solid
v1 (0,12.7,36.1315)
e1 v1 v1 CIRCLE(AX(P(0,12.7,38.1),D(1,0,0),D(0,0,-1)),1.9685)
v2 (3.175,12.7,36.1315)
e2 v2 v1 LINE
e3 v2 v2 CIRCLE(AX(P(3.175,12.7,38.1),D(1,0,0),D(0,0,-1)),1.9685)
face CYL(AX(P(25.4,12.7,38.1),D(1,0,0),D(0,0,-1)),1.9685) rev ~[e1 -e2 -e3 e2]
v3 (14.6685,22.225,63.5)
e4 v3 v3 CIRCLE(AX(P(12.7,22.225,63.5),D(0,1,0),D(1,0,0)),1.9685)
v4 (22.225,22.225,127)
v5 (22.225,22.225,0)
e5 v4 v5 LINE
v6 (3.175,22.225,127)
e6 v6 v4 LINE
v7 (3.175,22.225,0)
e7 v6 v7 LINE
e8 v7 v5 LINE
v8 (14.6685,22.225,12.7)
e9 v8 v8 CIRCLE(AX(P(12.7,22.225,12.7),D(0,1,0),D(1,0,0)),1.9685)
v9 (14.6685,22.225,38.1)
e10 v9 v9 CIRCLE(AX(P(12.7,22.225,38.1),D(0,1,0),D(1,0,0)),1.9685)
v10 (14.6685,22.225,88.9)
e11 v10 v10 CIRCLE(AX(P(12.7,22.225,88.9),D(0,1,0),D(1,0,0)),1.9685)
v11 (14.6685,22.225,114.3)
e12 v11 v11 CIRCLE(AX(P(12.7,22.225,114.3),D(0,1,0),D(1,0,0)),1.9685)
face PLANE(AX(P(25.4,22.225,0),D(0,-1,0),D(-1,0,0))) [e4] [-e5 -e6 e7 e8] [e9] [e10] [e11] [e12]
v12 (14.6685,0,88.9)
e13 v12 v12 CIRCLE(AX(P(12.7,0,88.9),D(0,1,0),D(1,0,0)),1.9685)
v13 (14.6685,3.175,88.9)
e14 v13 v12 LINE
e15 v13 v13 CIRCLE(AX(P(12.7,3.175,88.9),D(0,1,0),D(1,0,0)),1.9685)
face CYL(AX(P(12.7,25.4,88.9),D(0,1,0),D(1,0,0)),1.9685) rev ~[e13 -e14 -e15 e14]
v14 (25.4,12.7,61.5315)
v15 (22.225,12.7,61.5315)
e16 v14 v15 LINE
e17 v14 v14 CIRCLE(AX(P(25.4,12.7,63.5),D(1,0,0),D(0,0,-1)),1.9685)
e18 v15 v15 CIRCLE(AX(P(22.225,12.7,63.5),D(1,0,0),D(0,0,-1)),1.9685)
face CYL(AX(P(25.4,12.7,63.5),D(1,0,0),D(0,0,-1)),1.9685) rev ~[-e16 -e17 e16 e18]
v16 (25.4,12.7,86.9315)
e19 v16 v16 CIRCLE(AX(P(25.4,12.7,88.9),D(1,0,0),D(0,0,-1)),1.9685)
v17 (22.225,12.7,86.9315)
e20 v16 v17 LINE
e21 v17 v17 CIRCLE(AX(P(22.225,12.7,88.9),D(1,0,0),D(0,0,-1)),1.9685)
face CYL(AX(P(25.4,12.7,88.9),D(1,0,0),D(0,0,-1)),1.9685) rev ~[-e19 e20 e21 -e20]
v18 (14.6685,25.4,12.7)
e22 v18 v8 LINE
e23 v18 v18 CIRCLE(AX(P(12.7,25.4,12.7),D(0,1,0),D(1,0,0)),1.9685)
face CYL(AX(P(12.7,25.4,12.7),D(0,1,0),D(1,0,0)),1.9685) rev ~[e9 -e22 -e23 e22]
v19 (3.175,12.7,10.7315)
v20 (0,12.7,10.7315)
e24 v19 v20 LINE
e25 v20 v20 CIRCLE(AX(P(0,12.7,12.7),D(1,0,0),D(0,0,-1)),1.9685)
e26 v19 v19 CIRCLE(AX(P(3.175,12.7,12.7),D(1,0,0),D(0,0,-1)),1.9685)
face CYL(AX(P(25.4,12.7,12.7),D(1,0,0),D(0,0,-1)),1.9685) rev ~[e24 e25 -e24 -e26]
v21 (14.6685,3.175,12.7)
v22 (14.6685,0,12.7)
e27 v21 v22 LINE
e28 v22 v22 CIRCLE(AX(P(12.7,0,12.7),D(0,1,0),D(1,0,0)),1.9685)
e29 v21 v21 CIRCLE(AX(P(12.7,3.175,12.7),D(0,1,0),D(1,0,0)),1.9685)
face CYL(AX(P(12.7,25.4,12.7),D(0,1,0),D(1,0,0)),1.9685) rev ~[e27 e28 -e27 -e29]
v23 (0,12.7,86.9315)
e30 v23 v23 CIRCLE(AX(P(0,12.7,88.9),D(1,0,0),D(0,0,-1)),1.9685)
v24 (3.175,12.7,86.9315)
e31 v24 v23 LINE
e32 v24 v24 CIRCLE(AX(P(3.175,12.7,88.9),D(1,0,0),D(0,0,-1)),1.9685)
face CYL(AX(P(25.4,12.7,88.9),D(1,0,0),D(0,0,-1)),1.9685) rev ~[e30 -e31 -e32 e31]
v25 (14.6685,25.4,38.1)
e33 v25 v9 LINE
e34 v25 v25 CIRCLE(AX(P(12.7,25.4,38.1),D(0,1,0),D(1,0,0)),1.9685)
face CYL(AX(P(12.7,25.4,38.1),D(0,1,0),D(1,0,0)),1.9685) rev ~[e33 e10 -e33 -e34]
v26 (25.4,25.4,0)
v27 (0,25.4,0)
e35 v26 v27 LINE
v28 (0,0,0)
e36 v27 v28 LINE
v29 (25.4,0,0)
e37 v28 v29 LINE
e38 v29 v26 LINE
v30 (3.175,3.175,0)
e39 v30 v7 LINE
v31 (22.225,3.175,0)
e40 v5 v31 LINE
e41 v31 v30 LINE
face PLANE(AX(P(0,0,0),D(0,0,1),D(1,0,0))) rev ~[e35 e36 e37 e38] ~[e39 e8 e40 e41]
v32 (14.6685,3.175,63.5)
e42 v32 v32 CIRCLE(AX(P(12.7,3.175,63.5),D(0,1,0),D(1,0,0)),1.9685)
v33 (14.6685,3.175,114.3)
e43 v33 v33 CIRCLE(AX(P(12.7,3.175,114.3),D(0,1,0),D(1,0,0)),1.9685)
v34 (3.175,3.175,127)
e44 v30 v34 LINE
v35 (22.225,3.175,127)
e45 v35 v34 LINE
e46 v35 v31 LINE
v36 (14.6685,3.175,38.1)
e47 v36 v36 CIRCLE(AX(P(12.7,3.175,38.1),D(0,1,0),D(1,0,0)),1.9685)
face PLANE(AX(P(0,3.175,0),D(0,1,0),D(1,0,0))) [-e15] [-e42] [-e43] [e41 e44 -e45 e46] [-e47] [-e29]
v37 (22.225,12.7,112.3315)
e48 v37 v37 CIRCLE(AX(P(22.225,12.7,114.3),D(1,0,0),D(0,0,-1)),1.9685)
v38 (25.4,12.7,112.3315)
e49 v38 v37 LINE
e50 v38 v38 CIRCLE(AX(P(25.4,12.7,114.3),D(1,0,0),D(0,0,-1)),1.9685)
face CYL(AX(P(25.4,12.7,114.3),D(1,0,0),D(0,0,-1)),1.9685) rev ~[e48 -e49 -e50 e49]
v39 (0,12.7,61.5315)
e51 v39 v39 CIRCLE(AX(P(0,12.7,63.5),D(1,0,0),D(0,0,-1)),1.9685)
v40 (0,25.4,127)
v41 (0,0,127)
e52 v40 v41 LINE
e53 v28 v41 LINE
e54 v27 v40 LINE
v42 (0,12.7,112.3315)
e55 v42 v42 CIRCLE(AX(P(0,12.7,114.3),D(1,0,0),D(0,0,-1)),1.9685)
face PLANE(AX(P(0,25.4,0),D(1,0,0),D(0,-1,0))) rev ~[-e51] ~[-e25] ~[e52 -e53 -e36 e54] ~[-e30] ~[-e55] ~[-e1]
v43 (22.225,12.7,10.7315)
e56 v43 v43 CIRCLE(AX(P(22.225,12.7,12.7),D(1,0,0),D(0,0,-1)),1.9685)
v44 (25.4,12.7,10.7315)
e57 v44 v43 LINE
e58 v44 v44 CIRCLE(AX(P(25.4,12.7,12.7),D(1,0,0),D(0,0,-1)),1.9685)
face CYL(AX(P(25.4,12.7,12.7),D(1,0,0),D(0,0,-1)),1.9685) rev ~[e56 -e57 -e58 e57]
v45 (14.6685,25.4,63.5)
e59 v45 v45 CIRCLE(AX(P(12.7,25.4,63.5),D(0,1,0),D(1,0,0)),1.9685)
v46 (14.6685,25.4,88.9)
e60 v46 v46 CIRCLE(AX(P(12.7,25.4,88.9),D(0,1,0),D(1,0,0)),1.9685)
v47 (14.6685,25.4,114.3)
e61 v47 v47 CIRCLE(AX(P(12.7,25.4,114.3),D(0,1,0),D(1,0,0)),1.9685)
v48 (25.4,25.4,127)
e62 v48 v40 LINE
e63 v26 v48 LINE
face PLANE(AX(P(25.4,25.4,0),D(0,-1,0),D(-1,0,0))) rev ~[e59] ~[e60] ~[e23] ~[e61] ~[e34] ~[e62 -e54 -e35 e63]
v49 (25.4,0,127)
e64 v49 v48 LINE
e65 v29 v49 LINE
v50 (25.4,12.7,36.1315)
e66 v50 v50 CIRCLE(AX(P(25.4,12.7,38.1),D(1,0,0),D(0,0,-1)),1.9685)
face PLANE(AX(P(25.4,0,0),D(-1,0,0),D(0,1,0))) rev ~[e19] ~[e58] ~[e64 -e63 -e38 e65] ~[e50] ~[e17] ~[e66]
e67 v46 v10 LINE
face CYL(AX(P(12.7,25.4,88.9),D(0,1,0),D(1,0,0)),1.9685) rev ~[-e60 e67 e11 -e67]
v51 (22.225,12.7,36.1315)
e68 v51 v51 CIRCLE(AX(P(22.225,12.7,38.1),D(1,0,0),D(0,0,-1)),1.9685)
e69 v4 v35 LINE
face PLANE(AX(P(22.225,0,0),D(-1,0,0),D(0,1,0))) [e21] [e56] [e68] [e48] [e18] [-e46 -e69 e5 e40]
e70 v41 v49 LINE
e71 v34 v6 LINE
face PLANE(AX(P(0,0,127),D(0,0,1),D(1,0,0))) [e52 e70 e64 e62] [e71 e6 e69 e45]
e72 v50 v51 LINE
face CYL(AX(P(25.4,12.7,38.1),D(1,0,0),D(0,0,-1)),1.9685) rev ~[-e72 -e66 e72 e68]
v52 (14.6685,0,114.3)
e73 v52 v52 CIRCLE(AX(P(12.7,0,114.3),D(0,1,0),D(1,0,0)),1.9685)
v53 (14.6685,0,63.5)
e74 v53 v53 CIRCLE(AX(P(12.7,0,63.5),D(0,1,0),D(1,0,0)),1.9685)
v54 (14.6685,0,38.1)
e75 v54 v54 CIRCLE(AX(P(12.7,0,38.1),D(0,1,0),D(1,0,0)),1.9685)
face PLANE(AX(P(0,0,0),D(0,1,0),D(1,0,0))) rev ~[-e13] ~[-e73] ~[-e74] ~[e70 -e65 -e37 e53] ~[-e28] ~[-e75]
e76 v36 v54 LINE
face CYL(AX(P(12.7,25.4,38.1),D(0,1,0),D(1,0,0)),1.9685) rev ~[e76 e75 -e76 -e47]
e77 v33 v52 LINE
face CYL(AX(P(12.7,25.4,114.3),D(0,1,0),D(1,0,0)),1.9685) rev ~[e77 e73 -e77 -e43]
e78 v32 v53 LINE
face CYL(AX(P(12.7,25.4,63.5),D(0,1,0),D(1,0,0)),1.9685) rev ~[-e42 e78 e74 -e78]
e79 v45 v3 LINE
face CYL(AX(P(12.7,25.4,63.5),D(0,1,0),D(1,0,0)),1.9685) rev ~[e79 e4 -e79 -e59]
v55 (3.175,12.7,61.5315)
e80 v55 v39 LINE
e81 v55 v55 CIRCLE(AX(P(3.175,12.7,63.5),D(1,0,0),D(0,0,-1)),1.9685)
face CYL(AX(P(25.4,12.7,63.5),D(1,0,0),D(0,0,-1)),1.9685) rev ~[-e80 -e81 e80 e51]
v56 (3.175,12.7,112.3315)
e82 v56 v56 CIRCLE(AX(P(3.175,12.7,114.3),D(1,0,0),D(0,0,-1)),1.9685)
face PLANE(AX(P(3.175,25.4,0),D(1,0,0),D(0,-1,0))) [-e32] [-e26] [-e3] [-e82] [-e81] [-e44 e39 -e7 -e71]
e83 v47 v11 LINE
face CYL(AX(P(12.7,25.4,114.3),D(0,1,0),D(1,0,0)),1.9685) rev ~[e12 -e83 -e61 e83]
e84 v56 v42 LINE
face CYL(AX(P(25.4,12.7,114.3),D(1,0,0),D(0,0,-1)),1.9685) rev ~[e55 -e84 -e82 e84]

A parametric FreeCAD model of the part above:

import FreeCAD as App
import Part
import Sketcher
Q = App.Units.Quantity


def faces_at(feature, points):
    """Names of the faces that lie closest to the given points."""
    faces = feature.Shape.Faces
    near = lambda p: min(range(len(faces)), key=lambda i: faces[i].distToShape(Part.Vertex(*p))[0])
    return sorted({f"Face{near(p) + 1}" for p in points})

doc = App.newDocument("Part")
body = doc.addObject("PartDesign::Body", "Body")

# Sketch on XY plane
sketch1 = doc.addObject("Sketcher::SketchObject", "Sketch")
body.addObject(sketch1)
sketch1.AttachmentSupport = (doc.XY_Plane, [""])
sketch1.MapMode = "FlatFace"
sketch1.addGeometry([
    Part.LineSegment(App.Vector(0, 25, 0), App.Vector(0, 0, 0)),
    Part.LineSegment(App.Vector(0, 0, 0), App.Vector(25, 0, 0)),
    Part.LineSegment(App.Vector(25, 0, 0), App.Vector(25, 25, 0)),
    Part.LineSegment(App.Vector(25, 25, 0), App.Vector(0, 25, 0)),
], False)
sketch1.addConstraint([
    Sketcher.Constraint("Coincident", 0, 2, 1, 1),
    Sketcher.Constraint("Coincident", 1, 2, 2, 1),
    Sketcher.Constraint("Coincident", 2, 2, 3, 1),
    Sketcher.Constraint("Coincident", 3, 2, 0, 1),
    Sketcher.Constraint("Vertical", 0),
    Sketcher.Constraint("Horizontal", 1),
    Sketcher.Constraint("Vertical", 2),
    Sketcher.Constraint("Horizontal", 3),
    Sketcher.Constraint("Coincident", 0, 2, -1, 1),
    Sketcher.Constraint("Equal", 3, 0),
    Sketcher.Constraint("DistanceX", 1, 1, 1, 2, Q("1 in")),
])
pad1 = doc.addObject("PartDesign::Pad", "Pad")
body.addObject(pad1)
pad1.Profile = sketch1
pad1.Length = Q("5 in")
doc.recompute()

thickness = doc.addObject("PartDesign::Thickness", "Thickness")
body.addObject(thickness)
thickness.Base = (pad1, faces_at(pad1, [(8.467, 16.933, 0), (8.467, 16.933, 127)]))
thickness.Value = Q("0.125 in")
thickness.Reversed = True
thickness.Join = "Intersection"

# Sketch on XZ plane
sketch2 = doc.addObject("Sketcher::SketchObject", "Sketch001")
body.addObject(sketch2)
sketch2.AttachmentSupport = (doc.XZ_Plane, [""])
sketch2.MapMode = "FlatFace"
sketch2.AttachmentOffset = App.Placement(App.Vector(0, 0, -1 * 25.4), App.Rotation())
sketch2.addGeometry([
    Part.Circle(App.Vector(12.7, 12.7, 0), App.Vector(0, 0, 1), 2),  # 0
    Part.Circle(App.Vector(12.7, 38.1, 0), App.Vector(0, 0, 1), 2),  # 1
    Part.Circle(App.Vector(12.7, 63.5, 0), App.Vector(0, 0, 1), 2),  # 2
    Part.Circle(App.Vector(12.7, 88.9, 0), App.Vector(0, 0, 1), 2),  # 3
    Part.Circle(App.Vector(12.7, 114.3, 0), App.Vector(0, 0, 1), 2),  # 4
], False)
sketch2.addConstraint([
    Sketcher.Constraint("Equal", 0, 1),
    Sketcher.Constraint("Equal", 1, 2),
    Sketcher.Constraint("Equal", 2, 3),
    Sketcher.Constraint("Equal", 3, 4),
    Sketcher.Constraint("Vertical", 0, 3, 1, 3),
    Sketcher.Constraint("Vertical", 1, 3, 2, 3),
    Sketcher.Constraint("Vertical", 2, 3, 3, 3),
    Sketcher.Constraint("Vertical", 3, 3, 4, 3),
    Sketcher.Constraint("Diameter", 0, Q("0.155 in")),
    Sketcher.Constraint("DistanceY", 0, 3, 1, 3, Q("1 in")),
    Sketcher.Constraint("DistanceY", 1, 3, 2, 3, Q("1 in")),
    Sketcher.Constraint("DistanceY", 2, 3, 3, 3, Q("1 in")),
    Sketcher.Constraint("DistanceY", 3, 3, 4, 3, Q("1 in")),
    Sketcher.Constraint("DistanceX", -1, 1, 0, 3, Q("0.5 in")),
    Sketcher.Constraint("DistanceY", -1, 1, 0, 3, Q("0.5 in")),
])
pocket1 = doc.addObject("PartDesign::Pocket", "Pocket")
body.addObject(pocket1)
pocket1.Profile = sketch2
pocket1.Length = Q("5 in")
pocket1.Reversed = True

# Sketch on YZ plane
sketch3 = doc.addObject("Sketcher::SketchObject", "Sketch002")
body.addObject(sketch3)
sketch3.AttachmentSupport = (doc.YZ_Plane, [""])
sketch3.MapMode = "FlatFace"
sketch3.AttachmentOffset = App.Placement(App.Vector(0, 0, 1 * 25.4), App.Rotation())
sketch3.addGeometry([
    Part.Circle(App.Vector(12.7, 12.7, 0), App.Vector(0, 0, 1), 2),  # 0
    Part.Circle(App.Vector(12.7, 38.1, 0), App.Vector(0, 0, 1), 2),  # 1
    Part.Circle(App.Vector(12.7, 63.5, 0), App.Vector(0, 0, 1), 2),  # 2
    Part.Circle(App.Vector(12.7, 88.9, 0), App.Vector(0, 0, 1), 2),  # 3
    Part.Circle(App.Vector(12.7, 114.3, 0), App.Vector(0, 0, 1), 2),  # 4
], False)
sketch3.addConstraint([
    Sketcher.Constraint("Equal", 0, 1),
    Sketcher.Constraint("Equal", 1, 2),
    Sketcher.Constraint("Equal", 2, 3),
    Sketcher.Constraint("Equal", 3, 4),
    Sketcher.Constraint("Vertical", 0, 3, 1, 3),
    Sketcher.Constraint("Vertical", 1, 3, 2, 3),
    Sketcher.Constraint("Vertical", 2, 3, 3, 3),
    Sketcher.Constraint("Vertical", 3, 3, 4, 3),
    Sketcher.Constraint("Diameter", 0, Q("0.155 in")),
    Sketcher.Constraint("DistanceY", 0, 3, 1, 3, Q("1 in")),
    Sketcher.Constraint("DistanceY", 1, 3, 2, 3, Q("1 in")),
    Sketcher.Constraint("DistanceY", 2, 3, 3, 3, Q("1 in")),
    Sketcher.Constraint("DistanceY", 3, 3, 4, 3, Q("1 in")),
    Sketcher.Constraint("DistanceX", -1, 1, 0, 3, Q("0.5 in")),
    Sketcher.Constraint("DistanceY", -1, 1, 0, 3, Q("0.5 in")),
])
pocket2 = doc.addObject("PartDesign::Pocket", "Pocket001")
body.addObject(pocket2)
pocket2.Profile = sketch3
pocket2.Length = Q("5 in")

doc.recompute()
